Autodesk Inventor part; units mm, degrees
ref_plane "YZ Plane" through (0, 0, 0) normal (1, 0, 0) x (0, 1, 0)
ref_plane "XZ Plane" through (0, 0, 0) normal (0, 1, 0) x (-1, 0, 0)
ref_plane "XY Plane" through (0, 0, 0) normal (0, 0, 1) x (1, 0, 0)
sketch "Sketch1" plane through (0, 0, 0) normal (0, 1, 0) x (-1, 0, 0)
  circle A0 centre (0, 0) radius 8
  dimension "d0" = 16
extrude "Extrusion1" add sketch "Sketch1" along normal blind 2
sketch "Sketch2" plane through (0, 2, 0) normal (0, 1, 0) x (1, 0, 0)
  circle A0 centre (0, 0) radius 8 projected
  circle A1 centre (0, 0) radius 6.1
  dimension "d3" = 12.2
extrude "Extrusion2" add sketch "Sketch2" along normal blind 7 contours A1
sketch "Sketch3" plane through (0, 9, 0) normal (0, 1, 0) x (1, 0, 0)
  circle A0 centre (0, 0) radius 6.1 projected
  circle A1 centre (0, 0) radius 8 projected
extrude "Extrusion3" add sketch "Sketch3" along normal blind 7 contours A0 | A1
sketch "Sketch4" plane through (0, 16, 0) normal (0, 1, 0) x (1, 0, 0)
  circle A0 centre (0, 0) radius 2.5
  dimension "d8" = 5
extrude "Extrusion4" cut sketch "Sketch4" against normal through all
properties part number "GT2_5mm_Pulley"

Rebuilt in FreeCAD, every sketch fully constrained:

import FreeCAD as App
import Part
import Sketcher

V = App.Vector
Q = App.Units.Quantity

doc = App.newDocument("Part")
params = doc.addObject("Spreadsheet::Sheet", "Params")
for row, (alias, value) in enumerate([
    ("sketch1_diameter", "16 mm"),
    ("pad1_length", "2 mm"),
    ("sketch2_diameter", "12.2 mm"),
    ("pad2_length", "7 mm"),
    ("sketch3_diameter", "16 mm"),
    ("pad3_length", "7 mm"),
    ("sketch4_diameter", "5 mm"),
], start=1):
    params.set(f"A{row}", alias)
    params.set(f"B{row}", "=" + value)
    params.setAlias(f"B{row}", alias)

body = doc.addObject("PartDesign::Body", "Body")

sketch1 = doc.addObject("Sketcher::SketchObject", "Sketch")
body.addObject(sketch1)
sketch1.AttachmentSupport = (doc.XZ_Plane, [""])
sketch1.MapMode = "FlatFace"
sketch1.addGeometry(Part.Circle(V(0, 0, 0), V(0, 0, 1), 8), False)
sketch1.addConstraint([
    Sketcher.Constraint("Coincident", 0, 3, -1, 1),
    Sketcher.Constraint("Diameter", 0, Q("16 mm")),
])
sketch1.setExpression("Constraints[1]", "Params.sketch1_diameter")
pad1 = doc.addObject("PartDesign::Pad", "Pad")
body.addObject(pad1)
pad1.Profile = sketch1
pad1.setExpression("Length", "Params.pad1_length")
pad1.Reversed = True

sketch2 = doc.addObject("Sketcher::SketchObject", "Sketch001")
body.addObject(sketch2)
sketch2.AttachmentSupport = (doc.XZ_Plane, [""])
sketch2.MapMode = "FlatFace"
sketch2.AttachmentOffset = App.Placement(V(0, 0, -2), App.Rotation())
sketch2.addGeometry(Part.Circle(V(0, 0, 0), V(0, 0, 1), 6), False)
sketch2.addConstraint([
    Sketcher.Constraint("Coincident", 0, 3, -1, 1),
    Sketcher.Constraint("Diameter", 0, Q("12.2 mm")),
])
sketch2.setExpression("Constraints[1]", "Params.sketch2_diameter")
pad2 = doc.addObject("PartDesign::Pad", "Pad001")
body.addObject(pad2)
pad2.Profile = sketch2
pad2.setExpression("Length", "Params.pad2_length")
pad2.Reversed = True

sketch3 = doc.addObject("Sketcher::SketchObject", "Sketch002")
body.addObject(sketch3)
sketch3.AttachmentSupport = (doc.XZ_Plane, [""])
sketch3.MapMode = "FlatFace"
sketch3.AttachmentOffset = App.Placement(V(0, 0, -9), App.Rotation())
sketch3.addGeometry(Part.Circle(V(0, 0, 0), V(0, 0, 1), 8), False)
sketch3.addConstraint([
    Sketcher.Constraint("Coincident", 0, 3, -1, 1),
    Sketcher.Constraint("Diameter", 0, Q("16 mm")),
])
sketch3.setExpression("Constraints[1]", "Params.sketch3_diameter")
pad3 = doc.addObject("PartDesign::Pad", "Pad002")
body.addObject(pad3)
pad3.Profile = sketch3
pad3.setExpression("Length", "Params.pad3_length")
pad3.Reversed = True

sketch4 = doc.addObject("Sketcher::SketchObject", "Sketch003")
body.addObject(sketch4)
sketch4.AttachmentSupport = (doc.XZ_Plane, [""])
sketch4.MapMode = "FlatFace"
sketch4.AttachmentOffset = App.Placement(V(0, 0, -16), App.Rotation())
sketch4.addGeometry(Part.Circle(V(0, 0, 0), V(0, 0, 1), 2.5), False)
sketch4.addConstraint([
    Sketcher.Constraint("Coincident", 0, 3, -1, 1),
    Sketcher.Constraint("Diameter", 0, Q("5 mm")),
])
sketch4.setExpression("Constraints[1]", "Params.sketch4_diameter")
pocket1 = doc.addObject("PartDesign::Pocket", "Pocket")
body.addObject(pocket1)
pocket1.Profile = sketch4
pocket1.Type = "ThroughAll"
pocket1.Reversed = True

doc.recompute()
